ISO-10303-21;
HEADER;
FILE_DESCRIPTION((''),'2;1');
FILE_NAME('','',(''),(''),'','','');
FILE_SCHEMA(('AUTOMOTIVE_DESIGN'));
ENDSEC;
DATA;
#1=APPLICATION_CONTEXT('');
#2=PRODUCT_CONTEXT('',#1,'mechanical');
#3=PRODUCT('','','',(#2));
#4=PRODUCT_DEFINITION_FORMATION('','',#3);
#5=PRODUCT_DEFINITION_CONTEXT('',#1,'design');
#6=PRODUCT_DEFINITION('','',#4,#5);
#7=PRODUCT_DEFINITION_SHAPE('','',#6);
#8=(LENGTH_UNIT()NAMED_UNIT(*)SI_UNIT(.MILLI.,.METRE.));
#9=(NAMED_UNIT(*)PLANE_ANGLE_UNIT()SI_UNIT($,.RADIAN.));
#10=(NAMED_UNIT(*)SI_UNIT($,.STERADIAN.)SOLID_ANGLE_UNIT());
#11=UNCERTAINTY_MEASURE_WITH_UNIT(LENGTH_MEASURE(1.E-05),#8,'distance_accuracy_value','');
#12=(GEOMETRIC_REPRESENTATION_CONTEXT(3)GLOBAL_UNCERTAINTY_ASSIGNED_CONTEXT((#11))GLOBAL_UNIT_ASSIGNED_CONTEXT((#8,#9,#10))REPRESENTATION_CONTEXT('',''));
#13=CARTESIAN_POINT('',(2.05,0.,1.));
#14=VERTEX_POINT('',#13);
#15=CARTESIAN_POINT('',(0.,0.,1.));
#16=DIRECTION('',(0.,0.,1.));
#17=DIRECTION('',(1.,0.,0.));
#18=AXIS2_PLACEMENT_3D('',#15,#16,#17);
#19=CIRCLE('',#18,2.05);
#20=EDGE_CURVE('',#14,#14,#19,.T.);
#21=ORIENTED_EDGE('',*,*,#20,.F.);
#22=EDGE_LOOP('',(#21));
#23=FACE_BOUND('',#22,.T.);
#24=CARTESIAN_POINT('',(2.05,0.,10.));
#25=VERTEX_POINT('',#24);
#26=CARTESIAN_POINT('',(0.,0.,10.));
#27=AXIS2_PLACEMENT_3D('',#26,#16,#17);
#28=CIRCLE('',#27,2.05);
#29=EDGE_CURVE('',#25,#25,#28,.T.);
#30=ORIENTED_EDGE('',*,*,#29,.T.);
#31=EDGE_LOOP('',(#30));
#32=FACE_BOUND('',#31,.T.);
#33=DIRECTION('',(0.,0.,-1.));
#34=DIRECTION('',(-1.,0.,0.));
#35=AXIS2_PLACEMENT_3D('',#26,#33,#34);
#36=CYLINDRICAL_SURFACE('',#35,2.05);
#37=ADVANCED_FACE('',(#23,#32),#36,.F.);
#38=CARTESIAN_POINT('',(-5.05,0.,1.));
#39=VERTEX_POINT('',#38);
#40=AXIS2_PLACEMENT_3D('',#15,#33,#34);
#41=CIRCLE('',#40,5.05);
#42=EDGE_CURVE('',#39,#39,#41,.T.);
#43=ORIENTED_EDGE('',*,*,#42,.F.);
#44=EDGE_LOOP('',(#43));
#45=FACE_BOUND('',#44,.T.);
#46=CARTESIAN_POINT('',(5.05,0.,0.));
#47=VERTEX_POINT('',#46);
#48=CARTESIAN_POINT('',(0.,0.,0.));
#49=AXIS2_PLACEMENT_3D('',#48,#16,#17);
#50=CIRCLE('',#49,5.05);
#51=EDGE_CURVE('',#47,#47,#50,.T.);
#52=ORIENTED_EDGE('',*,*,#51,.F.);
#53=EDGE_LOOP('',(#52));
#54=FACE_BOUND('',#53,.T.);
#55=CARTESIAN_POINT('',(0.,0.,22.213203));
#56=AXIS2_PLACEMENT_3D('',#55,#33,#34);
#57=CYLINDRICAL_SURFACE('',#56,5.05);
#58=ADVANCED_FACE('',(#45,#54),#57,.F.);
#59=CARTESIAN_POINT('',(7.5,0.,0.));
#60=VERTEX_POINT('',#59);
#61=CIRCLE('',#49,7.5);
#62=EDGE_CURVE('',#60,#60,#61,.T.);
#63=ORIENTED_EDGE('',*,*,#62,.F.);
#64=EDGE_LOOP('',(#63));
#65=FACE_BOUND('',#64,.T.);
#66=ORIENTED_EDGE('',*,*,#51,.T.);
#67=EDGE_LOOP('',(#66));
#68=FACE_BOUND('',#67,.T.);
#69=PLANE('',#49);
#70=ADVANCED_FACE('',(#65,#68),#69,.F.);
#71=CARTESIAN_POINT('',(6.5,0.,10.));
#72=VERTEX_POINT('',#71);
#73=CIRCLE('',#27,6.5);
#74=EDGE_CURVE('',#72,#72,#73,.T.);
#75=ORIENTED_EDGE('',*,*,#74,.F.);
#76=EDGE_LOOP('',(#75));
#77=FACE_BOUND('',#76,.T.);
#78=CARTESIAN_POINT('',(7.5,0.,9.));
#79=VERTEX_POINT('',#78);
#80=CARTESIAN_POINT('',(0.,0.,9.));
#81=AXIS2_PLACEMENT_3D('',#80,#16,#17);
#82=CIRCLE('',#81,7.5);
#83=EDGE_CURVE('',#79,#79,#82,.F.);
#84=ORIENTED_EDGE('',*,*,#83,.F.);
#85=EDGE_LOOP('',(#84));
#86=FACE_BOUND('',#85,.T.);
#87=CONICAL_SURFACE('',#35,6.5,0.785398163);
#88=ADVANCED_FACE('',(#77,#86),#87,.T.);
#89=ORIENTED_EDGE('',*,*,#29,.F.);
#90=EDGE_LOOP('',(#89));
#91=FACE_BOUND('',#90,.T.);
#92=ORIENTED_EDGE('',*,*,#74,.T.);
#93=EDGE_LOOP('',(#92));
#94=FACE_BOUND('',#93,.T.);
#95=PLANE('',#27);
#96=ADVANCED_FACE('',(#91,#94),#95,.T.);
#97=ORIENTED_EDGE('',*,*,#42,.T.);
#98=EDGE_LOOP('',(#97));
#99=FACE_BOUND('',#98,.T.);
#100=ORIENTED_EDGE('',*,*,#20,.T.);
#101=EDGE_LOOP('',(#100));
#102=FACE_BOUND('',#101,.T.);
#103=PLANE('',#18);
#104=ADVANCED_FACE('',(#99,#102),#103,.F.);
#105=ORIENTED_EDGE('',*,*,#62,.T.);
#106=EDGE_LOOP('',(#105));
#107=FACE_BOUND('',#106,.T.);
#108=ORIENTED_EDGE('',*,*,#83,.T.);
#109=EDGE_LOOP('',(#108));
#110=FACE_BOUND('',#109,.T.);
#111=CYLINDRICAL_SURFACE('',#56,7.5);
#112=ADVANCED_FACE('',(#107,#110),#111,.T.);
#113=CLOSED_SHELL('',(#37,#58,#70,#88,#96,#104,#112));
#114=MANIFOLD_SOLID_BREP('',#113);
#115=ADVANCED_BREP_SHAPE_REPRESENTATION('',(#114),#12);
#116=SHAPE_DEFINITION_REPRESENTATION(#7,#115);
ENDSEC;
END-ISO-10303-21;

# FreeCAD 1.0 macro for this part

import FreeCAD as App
import Part
import Sketcher


def edges_at(feature, points):
    """Names of the edges that pass closest to the given points."""
    edges = feature.Shape.Edges
    near = lambda p: min(range(len(edges)), key=lambda i: edges[i].distToShape(Part.Vertex(*p))[0])
    return sorted({f"Edge{near(p) + 1}" for p in points})

doc = App.newDocument("Part")
body = doc.addObject("PartDesign::Body", "Body")

# Sketch on XY plane
sketch1 = doc.addObject("Sketcher::SketchObject", "Sketch")
body.addObject(sketch1)
sketch1.AttachmentSupport = (doc.XY_Plane, [""])
sketch1.MapMode = "FlatFace"
sketch1.addGeometry(Part.Circle(App.Vector(0, 0, 0), App.Vector(0, 0, 1), 8), False)
sketch1.addGeometry(Part.Circle(App.Vector(0, 0, 0), App.Vector(0, 0, 1), 5), False)
sketch1.addConstraint(Sketcher.Constraint("Coincident", 0, 3, -1, 1))
sketch1.addConstraint(Sketcher.Constraint("Coincident", 1, 3, -1, 1))
sketch1.addConstraint(Sketcher.Constraint("Diameter", 0, 15.0))
sketch1.addConstraint(Sketcher.Constraint("Diameter", 1, 10.1))
pad1 = doc.addObject("PartDesign::Pad", "Pad")
body.addObject(pad1)
pad1.Profile = sketch1
pad1.Length = 1

# Sketch on XY plane
sketch2 = doc.addObject("Sketcher::SketchObject", "Sketch001")
body.addObject(sketch2)
sketch2.AttachmentSupport = (doc.XY_Plane, [""])
sketch2.MapMode = "FlatFace"
sketch2.AttachmentOffset = App.Placement(App.Vector(0, 0, 1), App.Rotation())
sketch2.addGeometry(Part.Circle(App.Vector(0, 0, 0), App.Vector(0, 0, 1), 7.5), False)
sketch2.addGeometry(Part.Circle(App.Vector(0, 0, 0), App.Vector(0, 0, 1), 2), False)
sketch2.addConstraint(Sketcher.Constraint("Coincident", 0, 3, -1, 1))
sketch2.addConstraint(Sketcher.Constraint("Coincident", 1, 3, -1, 1))
sketch2.addConstraint(Sketcher.Constraint("Diameter", 0, 15.0))
sketch2.addConstraint(Sketcher.Constraint("Diameter", 1, 4.1))
pad2 = doc.addObject("PartDesign::Pad", "Pad001")
body.addObject(pad2)
pad2.Profile = sketch2
pad2.Length = 9
doc.recompute()

chamfer = doc.addObject("PartDesign::Chamfer", "Chamfer")
body.addObject(chamfer)
chamfer.Base = (pad2, edges_at(pad2, [(-7.5, 0, 10)]))
chamfer.Size = 1

doc.recompute()
